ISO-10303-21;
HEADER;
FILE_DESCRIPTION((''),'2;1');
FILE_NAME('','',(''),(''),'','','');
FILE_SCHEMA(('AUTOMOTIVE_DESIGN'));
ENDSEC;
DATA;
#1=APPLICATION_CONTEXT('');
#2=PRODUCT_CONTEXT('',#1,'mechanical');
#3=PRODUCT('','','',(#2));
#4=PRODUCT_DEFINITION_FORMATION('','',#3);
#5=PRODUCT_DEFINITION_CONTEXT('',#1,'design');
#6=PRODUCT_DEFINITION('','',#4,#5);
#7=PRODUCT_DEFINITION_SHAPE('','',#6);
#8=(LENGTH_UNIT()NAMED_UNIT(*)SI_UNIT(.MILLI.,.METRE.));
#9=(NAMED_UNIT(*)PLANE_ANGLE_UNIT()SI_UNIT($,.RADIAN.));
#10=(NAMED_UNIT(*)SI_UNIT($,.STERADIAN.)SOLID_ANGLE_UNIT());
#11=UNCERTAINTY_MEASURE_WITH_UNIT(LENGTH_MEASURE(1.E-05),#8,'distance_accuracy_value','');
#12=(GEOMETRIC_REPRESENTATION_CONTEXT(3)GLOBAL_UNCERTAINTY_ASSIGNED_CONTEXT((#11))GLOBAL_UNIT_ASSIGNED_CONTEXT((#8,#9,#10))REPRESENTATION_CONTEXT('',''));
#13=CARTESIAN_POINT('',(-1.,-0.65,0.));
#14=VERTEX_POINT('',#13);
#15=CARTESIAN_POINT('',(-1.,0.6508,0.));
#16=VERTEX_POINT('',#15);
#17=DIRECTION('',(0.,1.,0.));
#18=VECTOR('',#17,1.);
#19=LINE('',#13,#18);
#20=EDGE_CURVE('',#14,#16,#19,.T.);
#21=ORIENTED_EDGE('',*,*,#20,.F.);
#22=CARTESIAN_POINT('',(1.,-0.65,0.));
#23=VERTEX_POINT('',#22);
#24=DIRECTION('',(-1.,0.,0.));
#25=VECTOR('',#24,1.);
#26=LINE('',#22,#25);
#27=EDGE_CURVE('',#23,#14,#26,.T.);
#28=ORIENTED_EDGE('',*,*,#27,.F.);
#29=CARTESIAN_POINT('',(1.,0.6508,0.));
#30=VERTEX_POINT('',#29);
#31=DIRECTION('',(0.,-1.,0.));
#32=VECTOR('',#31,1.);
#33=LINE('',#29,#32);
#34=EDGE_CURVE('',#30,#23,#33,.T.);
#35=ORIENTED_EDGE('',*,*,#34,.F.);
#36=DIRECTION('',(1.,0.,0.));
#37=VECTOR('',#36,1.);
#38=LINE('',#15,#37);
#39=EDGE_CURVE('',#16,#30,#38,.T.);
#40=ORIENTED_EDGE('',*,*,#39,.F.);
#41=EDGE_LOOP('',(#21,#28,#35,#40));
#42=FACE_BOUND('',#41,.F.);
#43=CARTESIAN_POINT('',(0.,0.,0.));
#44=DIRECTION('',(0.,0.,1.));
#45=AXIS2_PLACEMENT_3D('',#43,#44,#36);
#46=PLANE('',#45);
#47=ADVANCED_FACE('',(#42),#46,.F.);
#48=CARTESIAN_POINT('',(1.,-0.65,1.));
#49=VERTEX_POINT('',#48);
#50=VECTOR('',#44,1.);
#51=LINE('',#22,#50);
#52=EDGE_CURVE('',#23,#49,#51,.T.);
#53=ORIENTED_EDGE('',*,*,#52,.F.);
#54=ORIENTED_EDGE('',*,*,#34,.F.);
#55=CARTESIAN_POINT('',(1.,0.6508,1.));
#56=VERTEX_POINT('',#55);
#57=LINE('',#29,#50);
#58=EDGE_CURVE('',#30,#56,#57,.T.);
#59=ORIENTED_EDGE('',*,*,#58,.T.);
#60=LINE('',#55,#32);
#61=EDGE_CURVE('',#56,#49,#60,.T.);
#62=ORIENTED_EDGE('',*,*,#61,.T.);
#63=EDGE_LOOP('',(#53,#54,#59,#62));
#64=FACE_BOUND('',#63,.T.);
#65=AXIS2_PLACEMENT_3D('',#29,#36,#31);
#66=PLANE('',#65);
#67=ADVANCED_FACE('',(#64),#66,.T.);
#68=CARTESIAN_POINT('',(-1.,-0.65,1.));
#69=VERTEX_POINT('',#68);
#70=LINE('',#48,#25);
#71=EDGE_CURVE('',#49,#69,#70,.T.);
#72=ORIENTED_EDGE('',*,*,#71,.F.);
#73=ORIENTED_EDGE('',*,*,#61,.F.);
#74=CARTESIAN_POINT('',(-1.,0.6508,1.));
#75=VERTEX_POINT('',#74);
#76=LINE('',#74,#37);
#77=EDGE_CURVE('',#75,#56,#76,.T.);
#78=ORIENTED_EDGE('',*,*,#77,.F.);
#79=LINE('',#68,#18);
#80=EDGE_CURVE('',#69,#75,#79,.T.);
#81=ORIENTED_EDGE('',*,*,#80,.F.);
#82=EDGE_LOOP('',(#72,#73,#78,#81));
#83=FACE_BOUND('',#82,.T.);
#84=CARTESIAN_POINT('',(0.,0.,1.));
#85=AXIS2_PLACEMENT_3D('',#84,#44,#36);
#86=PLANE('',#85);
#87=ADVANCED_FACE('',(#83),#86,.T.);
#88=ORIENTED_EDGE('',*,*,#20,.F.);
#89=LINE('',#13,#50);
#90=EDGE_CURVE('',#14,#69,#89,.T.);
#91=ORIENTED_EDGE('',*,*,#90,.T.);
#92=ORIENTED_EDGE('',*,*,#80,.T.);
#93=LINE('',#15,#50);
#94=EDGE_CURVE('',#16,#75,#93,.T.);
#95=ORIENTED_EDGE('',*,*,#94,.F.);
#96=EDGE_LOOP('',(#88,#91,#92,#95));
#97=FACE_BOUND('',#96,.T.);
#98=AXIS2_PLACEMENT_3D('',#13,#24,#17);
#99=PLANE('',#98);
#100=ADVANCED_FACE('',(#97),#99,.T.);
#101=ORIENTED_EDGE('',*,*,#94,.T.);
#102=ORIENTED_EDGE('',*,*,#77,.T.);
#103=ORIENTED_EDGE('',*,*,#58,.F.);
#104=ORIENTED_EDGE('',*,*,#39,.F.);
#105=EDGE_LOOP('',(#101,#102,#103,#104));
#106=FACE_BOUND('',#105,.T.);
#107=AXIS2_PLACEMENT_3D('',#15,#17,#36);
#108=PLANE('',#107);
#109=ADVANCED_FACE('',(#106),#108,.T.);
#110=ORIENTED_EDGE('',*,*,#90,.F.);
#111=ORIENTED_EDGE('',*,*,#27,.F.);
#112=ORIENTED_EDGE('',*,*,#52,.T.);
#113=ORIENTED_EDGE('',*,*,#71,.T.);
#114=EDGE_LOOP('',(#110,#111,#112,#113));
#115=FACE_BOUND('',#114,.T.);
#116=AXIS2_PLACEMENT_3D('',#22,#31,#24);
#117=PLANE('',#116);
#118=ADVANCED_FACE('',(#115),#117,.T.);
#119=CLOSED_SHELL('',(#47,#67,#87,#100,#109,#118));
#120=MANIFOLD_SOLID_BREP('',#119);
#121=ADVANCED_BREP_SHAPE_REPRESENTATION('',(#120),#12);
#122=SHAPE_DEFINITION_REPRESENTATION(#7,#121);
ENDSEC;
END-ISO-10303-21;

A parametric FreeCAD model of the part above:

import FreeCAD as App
import Part
import Sketcher

V = App.Vector


def add_polygon(sketch, points):
    """Adds a closed chain of lines whose ends are joined by coincident constraints."""
    first, n = sketch.GeometryCount, len(points)
    for a, b in zip(points, points[1:] + points[:1]):
        sketch.addGeometry(Part.LineSegment(App.Vector(*a, 0), App.Vector(*b, 0)), False)
    for i in range(n):
        sketch.addConstraint(Sketcher.Constraint("Coincident", first + i, 2, first + (i + 1) % n, 1))

doc = App.newDocument("Part")
body = doc.addObject("PartDesign::Body", "Body")

sketch1 = body.newObject("Sketcher::SketchObject", "Sketch")
sketch1.AttachmentSupport = (doc.getObject("XY_Plane"), [""])
sketch1.MapMode = "FlatFace"
add_polygon(sketch1, [(1, 0.6508), (-1, 0.6508), (-1, -0.65), (1, -0.65)])
sketch1.addConstraint([
    Sketcher.Constraint("Horizontal", 0),
    Sketcher.Constraint("Vertical", 1),
    Sketcher.Constraint("Horizontal", 2),
    Sketcher.Constraint("Vertical", 3),
    Sketcher.Constraint("DistanceX", 0, 2, 0, 1, 2.0),
    Sketcher.Constraint("DistanceX", 0, 2, -1, 1, 1.0),
    Sketcher.Constraint("DistanceY", 1, 2, -1, 1, 0.65),
    Sketcher.Constraint("DistanceY", 1, 2, 1, 1, 1.3008),
])
pad1 = body.newObject("PartDesign::Pad", "Pad")
pad1.Profile = sketch1
pad1.Length = 1

doc.recompute()
